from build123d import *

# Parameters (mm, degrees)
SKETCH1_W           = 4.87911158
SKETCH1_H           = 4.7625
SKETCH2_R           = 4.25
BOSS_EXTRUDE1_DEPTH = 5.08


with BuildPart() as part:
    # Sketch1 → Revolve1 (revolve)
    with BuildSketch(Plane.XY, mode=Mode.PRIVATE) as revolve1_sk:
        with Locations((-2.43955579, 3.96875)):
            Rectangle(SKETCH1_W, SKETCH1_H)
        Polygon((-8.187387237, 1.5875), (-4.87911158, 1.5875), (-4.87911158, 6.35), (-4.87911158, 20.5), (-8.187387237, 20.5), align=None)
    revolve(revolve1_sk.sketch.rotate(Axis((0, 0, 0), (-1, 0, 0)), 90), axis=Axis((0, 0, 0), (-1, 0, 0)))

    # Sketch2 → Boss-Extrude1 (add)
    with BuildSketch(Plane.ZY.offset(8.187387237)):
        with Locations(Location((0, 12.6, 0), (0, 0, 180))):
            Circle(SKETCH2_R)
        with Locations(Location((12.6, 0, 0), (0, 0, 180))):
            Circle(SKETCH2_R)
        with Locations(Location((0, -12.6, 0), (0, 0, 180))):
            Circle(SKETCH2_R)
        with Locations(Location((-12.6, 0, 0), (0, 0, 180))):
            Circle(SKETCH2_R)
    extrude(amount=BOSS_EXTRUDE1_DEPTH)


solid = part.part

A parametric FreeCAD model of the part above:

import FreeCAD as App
import Part
import Sketcher

V = App.Vector
Q = App.Units.Quantity


def add_polygon(sketch, points):
    """Adds a closed chain of lines whose ends are joined by coincident constraints."""
    first, n = sketch.GeometryCount, len(points)
    for a, b in zip(points, points[1:] + points[:1]):
        sketch.addGeometry(Part.LineSegment(App.Vector(*a, 0), App.Vector(*b, 0)), False)
    for i in range(n):
        sketch.addConstraint(Sketcher.Constraint("Coincident", first + i, 2, first + (i + 1) % n, 1))

doc = App.newDocument("Part")
body = doc.addObject("PartDesign::Body", "Body")

# Sketch on XY plane
sketch1 = doc.addObject("Sketcher::SketchObject", "Sketch")
body.addObject(sketch1)
sketch1.AttachmentSupport = (doc.XY_Plane, [""])
sketch1.MapMode = "FlatFace"
add_polygon(sketch1, [(0, 1.6), (0, 6.3), (-4.9, 6.3), (-4.9, 20.5), (-8.2, 20.5), (-8.2, 1.6)])  # lines 0-5
sketch1.addConstraint([
    Sketcher.Constraint("Vertical", 0),
    Sketcher.Constraint("Horizontal", 1),
    Sketcher.Constraint("Vertical", 2),
    Sketcher.Constraint("Horizontal", 3),
    Sketcher.Constraint("Vertical", 4),
    Sketcher.Constraint("Horizontal", 5),
    Sketcher.Constraint("PointOnObject", 0, 2, -2),
    Sketcher.Constraint("DistanceY", 0, 1, 0, 2, Q("0.1875 in")),
    Sketcher.Constraint("DistanceY", -1, 1, 0, 2, Q("0.25 in")),
    Sketcher.Constraint("DistanceY", 2, 1, 2, 2, Q("14.15 mm")),
    Sketcher.Constraint("DistanceX", 1, 2, 1, 1, Q("4.879112 mm")),
    Sketcher.Constraint("DistanceX", 3, 2, 3, 1, Q("3.308276 mm")),
])
revolution = doc.addObject("PartDesign::Revolution", "Revolution")
body.addObject(revolution)
revolution.Profile = sketch1
revolution.ReferenceAxis = (sketch1, ["H_Axis"])
revolution.Angle = 360

# Sketch on YZ plane
sketch2 = doc.addObject("Sketcher::SketchObject", "Sketch001")
body.addObject(sketch2)
sketch2.AttachmentSupport = (doc.YZ_Plane, [""])
sketch2.MapMode = "FlatFace"
sketch2.AttachmentOffset = App.Placement(V(0, 0, -8.187387), App.Rotation())
sketch2.addGeometry([
    Part.Circle(V(12.6, 0, 0), V(0, 0, 1), 4.2),
    Part.Circle(V(0, 12.6, 0), V(0, 0, 1), 4.2),
    Part.Circle(V(-12.6, 0, 0), V(0, 0, 1), 4.2),
    Part.Circle(V(0, -12.6, 0), V(0, 0, 1), 4.2),
], False)
sketch2.addConstraint([
    Sketcher.Constraint("Equal", 0, 1),
    Sketcher.Constraint("Equal", 1, 2),
    Sketcher.Constraint("Equal", 2, 3),
    Sketcher.Constraint("Symmetric", 0, 3, 2, 3, -1, 1),
    Sketcher.Constraint("Symmetric", 1, 3, 3, 3, -1, 1),
    Sketcher.Constraint("PointOnObject", 0, 3, -1),
    Sketcher.Constraint("PointOnObject", 1, 3, -2),
    Sketcher.Constraint("Diameter", 0, Q("8.5 mm")),
    Sketcher.Constraint("DistanceX", -1, 1, 0, 3, Q("12.6 mm")),
    Sketcher.Constraint("DistanceY", -1, 1, 1, 3, Q("12.6 mm")),
])
pad1 = doc.addObject("PartDesign::Pad", "Pad")
body.addObject(pad1)
pad1.Profile = sketch2
pad1.Length = Q("0.2 in")
pad1.Reversed = True

doc.recompute()
